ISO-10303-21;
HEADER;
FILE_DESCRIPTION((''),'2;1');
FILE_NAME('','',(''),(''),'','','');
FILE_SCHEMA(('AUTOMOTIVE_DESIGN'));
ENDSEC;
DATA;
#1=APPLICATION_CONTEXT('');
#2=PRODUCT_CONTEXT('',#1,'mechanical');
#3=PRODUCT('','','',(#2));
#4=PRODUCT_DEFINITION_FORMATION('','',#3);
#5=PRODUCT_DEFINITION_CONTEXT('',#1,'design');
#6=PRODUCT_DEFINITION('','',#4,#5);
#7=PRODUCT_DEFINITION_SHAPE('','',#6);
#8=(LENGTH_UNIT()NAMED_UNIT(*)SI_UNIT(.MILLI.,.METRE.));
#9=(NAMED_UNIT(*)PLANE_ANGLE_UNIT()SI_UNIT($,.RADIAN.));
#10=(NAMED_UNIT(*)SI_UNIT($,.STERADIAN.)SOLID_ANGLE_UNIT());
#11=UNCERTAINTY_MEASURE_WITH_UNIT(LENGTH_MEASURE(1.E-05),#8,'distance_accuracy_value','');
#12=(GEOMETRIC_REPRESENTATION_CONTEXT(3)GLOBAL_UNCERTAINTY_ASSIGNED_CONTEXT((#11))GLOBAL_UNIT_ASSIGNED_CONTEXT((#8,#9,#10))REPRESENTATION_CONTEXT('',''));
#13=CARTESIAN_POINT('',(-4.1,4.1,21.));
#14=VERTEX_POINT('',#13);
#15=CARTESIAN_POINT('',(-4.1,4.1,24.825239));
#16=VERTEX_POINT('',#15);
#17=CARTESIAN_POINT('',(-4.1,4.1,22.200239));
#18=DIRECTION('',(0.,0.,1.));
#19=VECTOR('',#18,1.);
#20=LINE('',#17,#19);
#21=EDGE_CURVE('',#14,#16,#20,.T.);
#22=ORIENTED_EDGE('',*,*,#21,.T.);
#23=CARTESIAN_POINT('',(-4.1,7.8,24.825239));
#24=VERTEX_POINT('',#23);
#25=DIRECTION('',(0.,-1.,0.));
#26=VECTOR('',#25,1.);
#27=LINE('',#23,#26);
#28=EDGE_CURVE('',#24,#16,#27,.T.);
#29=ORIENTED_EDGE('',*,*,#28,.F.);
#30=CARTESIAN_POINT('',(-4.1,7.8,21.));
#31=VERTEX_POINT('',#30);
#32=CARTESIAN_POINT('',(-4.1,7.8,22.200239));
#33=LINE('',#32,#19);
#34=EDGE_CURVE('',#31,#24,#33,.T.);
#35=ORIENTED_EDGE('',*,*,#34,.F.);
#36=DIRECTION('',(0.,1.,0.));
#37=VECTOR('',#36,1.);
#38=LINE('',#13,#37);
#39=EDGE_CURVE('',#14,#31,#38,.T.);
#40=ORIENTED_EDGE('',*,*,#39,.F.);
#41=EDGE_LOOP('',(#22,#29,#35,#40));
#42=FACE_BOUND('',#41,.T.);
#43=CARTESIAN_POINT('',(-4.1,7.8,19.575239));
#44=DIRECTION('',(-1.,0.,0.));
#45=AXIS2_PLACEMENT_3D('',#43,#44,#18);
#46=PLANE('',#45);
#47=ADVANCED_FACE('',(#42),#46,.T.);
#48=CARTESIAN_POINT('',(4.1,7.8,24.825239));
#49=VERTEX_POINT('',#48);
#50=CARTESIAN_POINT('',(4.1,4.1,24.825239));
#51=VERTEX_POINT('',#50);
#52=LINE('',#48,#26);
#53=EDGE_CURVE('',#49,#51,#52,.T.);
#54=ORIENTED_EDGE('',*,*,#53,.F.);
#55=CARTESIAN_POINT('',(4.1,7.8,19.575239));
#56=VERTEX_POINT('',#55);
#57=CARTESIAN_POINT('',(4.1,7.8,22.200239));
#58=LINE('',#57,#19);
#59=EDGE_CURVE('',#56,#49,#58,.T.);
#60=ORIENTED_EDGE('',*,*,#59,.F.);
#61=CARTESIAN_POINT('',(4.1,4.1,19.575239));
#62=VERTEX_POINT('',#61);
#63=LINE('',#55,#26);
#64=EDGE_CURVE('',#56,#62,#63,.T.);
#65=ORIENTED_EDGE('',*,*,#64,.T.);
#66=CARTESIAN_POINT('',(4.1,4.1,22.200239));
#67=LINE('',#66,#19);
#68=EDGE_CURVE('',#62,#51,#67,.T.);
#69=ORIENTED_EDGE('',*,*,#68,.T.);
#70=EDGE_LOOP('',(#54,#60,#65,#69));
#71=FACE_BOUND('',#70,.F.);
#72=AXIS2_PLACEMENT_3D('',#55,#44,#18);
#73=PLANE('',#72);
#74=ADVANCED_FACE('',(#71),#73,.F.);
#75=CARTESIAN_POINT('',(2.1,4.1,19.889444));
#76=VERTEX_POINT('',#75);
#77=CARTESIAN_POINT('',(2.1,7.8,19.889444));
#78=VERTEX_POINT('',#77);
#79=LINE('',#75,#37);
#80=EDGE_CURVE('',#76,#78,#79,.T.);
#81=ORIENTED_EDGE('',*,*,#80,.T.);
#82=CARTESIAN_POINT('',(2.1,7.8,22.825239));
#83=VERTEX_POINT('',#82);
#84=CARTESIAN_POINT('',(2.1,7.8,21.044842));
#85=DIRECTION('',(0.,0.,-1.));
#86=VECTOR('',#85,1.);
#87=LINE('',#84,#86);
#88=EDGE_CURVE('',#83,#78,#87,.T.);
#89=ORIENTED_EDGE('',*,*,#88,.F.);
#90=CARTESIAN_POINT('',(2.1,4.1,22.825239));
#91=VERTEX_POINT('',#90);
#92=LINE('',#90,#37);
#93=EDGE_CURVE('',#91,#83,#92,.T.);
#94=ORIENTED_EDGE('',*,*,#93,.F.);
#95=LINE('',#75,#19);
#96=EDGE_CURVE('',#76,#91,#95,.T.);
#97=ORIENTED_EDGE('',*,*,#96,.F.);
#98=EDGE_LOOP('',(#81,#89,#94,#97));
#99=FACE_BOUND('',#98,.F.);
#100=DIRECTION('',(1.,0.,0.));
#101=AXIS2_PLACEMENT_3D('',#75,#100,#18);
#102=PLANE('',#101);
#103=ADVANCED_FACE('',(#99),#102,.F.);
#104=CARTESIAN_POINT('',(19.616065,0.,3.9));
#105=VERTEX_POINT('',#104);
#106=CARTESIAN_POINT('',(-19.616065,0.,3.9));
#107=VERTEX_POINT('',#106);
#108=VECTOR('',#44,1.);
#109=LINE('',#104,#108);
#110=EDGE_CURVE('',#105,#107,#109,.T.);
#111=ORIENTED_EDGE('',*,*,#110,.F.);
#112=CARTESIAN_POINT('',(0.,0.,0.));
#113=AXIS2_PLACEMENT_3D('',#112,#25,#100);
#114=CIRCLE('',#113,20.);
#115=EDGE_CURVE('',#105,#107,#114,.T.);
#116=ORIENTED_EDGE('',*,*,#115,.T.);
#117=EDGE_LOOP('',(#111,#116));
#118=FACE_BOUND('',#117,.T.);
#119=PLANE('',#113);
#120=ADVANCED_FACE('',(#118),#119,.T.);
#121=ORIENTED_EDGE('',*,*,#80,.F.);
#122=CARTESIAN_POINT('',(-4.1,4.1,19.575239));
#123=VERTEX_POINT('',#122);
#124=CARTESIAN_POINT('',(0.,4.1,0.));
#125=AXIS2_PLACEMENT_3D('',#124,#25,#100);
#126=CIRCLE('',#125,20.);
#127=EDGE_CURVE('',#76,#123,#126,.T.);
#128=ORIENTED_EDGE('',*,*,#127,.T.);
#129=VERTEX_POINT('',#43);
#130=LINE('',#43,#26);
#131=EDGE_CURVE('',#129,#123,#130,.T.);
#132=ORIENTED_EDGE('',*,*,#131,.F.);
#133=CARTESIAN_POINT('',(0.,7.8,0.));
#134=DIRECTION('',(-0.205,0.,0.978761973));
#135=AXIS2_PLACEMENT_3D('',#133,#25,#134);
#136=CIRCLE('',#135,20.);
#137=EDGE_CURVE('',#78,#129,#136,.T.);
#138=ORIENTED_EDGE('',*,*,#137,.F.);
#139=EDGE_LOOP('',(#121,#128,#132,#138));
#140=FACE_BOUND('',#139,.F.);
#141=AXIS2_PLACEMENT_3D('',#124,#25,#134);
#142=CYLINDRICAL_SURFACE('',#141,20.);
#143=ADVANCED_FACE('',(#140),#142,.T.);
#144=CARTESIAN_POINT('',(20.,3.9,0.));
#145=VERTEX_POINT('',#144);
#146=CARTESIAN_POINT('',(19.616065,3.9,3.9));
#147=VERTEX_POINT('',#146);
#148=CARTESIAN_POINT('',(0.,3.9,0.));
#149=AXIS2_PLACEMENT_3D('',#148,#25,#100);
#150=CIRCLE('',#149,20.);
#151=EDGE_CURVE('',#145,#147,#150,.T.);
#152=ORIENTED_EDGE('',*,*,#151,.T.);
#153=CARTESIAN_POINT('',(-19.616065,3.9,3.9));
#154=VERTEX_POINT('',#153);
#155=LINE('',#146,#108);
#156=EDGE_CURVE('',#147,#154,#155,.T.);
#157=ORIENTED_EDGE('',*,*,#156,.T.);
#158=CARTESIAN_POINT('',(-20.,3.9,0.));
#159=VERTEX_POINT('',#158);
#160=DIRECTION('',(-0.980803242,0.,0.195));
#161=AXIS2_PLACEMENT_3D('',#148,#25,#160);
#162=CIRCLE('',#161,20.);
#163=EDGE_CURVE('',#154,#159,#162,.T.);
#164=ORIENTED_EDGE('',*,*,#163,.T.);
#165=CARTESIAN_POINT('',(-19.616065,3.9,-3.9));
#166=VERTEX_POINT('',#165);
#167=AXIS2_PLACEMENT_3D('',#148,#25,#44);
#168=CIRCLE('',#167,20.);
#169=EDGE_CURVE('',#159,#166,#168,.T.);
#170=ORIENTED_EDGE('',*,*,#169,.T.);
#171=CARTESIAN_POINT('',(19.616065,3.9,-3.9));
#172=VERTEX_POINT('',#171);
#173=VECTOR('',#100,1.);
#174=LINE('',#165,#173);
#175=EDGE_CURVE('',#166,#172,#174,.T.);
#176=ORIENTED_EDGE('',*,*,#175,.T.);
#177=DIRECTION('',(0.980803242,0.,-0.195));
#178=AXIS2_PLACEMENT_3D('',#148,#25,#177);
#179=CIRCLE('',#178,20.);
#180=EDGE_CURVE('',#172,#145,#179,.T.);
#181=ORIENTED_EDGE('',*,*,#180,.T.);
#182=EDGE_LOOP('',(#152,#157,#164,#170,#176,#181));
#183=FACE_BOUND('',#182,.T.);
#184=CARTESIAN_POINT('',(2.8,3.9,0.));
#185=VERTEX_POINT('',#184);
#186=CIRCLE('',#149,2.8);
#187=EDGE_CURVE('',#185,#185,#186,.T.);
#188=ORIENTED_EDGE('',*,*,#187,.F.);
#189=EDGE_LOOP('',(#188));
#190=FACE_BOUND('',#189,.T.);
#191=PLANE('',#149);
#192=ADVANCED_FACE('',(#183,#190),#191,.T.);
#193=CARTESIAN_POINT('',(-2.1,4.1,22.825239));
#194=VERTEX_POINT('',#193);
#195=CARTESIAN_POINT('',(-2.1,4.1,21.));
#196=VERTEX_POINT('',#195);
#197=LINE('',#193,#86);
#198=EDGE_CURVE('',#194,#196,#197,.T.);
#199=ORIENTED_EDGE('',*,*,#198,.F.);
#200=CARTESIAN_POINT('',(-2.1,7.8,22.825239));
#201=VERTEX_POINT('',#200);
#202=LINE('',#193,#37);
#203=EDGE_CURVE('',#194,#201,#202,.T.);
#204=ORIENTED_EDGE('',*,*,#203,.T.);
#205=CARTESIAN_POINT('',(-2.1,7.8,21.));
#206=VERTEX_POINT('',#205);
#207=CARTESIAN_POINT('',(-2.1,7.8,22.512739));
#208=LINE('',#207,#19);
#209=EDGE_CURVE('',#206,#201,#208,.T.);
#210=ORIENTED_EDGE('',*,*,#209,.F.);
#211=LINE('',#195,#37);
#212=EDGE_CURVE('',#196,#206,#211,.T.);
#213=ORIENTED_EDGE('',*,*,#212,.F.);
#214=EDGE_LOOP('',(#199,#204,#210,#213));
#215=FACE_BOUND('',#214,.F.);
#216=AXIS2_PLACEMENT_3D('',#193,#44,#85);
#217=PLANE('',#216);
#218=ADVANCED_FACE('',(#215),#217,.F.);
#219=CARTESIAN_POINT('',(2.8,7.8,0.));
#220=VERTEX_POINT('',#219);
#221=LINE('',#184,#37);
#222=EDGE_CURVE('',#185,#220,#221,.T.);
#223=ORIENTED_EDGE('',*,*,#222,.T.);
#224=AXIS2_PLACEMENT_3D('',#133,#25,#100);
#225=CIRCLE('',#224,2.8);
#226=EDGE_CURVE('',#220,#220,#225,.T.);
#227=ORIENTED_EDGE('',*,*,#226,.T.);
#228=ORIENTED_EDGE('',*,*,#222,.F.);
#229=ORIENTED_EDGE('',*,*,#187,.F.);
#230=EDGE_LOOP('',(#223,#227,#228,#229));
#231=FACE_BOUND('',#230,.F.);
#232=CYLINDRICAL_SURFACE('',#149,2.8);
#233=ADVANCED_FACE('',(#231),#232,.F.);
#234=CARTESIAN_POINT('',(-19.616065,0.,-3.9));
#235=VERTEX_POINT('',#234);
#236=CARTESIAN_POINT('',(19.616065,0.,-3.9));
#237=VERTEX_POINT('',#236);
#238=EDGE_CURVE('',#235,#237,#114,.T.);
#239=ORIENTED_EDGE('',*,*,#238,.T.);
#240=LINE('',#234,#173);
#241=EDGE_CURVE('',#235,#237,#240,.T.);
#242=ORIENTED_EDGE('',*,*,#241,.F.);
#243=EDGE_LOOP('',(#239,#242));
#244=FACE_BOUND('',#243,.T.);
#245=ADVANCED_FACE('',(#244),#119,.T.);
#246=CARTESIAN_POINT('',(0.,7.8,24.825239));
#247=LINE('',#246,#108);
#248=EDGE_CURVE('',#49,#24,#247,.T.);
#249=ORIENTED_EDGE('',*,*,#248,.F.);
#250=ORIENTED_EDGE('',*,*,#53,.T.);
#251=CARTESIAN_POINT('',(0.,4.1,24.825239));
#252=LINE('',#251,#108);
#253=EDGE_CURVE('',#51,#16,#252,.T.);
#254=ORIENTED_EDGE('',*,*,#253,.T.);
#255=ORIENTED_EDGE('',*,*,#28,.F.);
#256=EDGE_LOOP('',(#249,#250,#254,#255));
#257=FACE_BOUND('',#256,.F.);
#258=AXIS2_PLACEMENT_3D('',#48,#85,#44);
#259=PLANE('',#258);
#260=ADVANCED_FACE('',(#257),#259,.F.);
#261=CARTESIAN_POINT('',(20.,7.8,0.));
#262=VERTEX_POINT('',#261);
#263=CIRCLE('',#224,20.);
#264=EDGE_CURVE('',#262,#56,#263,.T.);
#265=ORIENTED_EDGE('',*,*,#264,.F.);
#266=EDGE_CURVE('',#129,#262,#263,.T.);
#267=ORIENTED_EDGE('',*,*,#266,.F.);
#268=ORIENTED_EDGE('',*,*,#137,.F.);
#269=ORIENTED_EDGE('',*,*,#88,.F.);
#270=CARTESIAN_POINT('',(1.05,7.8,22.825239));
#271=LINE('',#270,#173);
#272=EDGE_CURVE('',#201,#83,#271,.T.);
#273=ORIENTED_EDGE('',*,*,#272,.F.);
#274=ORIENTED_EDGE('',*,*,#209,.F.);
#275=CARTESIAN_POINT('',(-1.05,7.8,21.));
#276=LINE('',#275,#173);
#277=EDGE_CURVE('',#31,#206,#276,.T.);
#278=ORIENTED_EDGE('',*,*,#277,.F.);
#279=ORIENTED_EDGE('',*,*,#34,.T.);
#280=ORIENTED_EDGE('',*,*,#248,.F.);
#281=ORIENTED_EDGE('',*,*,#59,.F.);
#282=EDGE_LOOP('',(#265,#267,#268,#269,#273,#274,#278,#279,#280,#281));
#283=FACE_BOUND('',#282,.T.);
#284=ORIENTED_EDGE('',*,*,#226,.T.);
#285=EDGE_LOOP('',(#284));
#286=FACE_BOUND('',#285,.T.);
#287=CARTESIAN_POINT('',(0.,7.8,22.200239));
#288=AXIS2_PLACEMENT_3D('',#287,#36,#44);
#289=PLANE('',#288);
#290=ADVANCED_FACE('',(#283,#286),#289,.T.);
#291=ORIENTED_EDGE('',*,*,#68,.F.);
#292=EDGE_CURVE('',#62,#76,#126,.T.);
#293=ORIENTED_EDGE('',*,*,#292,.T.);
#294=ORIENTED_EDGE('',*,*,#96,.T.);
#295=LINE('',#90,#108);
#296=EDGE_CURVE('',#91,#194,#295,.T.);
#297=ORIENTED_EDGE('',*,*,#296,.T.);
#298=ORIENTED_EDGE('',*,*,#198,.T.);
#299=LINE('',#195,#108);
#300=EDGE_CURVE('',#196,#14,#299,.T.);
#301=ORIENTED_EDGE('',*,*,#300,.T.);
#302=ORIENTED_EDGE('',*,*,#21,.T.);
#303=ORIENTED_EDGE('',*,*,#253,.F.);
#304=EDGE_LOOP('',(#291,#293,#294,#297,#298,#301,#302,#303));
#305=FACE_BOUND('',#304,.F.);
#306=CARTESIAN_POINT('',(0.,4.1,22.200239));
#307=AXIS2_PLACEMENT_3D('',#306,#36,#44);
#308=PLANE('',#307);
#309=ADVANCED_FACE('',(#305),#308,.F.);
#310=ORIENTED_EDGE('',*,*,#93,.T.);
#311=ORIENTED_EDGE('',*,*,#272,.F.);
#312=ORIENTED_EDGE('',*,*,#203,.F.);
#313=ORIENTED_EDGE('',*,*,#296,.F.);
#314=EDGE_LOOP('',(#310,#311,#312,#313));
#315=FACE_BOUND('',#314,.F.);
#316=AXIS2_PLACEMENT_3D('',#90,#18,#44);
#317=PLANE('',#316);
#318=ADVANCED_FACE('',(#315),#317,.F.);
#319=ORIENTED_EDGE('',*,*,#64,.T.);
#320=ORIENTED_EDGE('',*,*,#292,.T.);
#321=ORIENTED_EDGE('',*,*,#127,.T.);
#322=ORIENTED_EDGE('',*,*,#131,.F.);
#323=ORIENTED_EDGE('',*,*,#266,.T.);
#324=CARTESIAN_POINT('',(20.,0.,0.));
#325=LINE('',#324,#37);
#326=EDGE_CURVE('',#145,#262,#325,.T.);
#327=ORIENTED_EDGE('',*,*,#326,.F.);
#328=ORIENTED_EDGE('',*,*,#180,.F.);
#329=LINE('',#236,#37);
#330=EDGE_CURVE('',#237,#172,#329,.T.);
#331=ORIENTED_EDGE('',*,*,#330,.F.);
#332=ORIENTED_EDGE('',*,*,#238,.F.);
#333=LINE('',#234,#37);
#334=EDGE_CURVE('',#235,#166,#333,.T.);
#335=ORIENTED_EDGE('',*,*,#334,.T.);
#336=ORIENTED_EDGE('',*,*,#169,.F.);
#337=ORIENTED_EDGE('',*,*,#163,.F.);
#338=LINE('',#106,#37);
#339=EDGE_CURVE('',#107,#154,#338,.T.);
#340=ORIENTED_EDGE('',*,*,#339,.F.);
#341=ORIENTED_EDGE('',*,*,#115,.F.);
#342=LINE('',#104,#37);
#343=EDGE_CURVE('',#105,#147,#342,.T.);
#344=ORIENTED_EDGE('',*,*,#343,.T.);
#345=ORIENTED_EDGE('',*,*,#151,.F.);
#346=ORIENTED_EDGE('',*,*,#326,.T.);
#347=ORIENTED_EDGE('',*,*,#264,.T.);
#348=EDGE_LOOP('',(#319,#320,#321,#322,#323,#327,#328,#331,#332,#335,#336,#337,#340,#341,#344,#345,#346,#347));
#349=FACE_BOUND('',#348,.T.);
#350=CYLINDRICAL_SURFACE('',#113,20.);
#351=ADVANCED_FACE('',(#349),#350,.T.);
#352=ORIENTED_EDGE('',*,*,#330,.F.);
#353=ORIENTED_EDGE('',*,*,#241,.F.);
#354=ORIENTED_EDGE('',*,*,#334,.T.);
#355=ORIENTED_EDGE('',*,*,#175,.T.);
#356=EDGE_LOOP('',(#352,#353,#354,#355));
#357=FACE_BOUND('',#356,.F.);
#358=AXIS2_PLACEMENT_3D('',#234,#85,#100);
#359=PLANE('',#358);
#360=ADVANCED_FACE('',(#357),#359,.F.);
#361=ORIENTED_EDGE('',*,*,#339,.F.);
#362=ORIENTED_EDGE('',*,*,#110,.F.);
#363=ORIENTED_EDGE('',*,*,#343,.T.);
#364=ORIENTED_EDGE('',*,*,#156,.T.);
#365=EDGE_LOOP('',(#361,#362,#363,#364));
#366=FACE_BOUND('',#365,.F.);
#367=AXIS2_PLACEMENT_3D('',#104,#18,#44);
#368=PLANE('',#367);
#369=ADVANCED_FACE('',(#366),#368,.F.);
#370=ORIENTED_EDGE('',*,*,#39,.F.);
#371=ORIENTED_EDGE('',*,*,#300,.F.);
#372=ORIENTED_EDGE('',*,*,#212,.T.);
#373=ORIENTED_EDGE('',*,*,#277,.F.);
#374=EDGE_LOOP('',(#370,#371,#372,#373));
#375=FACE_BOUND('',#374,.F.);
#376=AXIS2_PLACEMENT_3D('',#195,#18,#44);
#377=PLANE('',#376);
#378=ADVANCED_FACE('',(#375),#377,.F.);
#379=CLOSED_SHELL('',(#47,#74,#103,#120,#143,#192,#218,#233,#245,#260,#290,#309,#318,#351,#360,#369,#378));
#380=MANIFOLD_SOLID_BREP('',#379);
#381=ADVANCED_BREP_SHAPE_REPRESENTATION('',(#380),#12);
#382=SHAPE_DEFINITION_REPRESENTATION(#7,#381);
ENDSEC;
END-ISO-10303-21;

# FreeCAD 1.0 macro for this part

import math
import FreeCAD as App
import Part
import Sketcher
from FreeCAD import Vector
Q = App.Units.Quantity

doc = App.newDocument("Part")
params = doc.addObject("Spreadsheet::Sheet", "Params")
for row, (alias, value) in enumerate([
    ("sketch1_diameter", "40 mm"),
    ("pad1_length", "7.8 mm"),
    ("sketch2_radius", "20 mm"),
    ("pocket1_length", "3.9 mm"),
    ("sketch3_diameter", "5.6 mm"),
    ("sketch4_width", "8.2 mm"),
    ("sketch4_height", "5.25 mm"),
    ("pad2_length", "3.7 mm"),
    ("sketch5_radius", "20 mm"),
    ("sketch5_width", "2 mm"),
    ("sketch5_width2", "4.2 mm"),
], start=1):
    params.set(f"A{row}", alias)
    params.set(f"B{row}", "=" + value)
    params.setAlias(f"B{row}", alias)

body = doc.addObject("PartDesign::Body", "Body")

# Sketch on XZ plane
sketch1 = body.newObject("Sketcher::SketchObject", "Sketch")
sketch1.AttachmentSupport = (doc.getObject("XZ_Plane"), [""])
sketch1.MapMode = "FlatFace"
sketch1.addGeometry(Part.Circle(Vector(0, 0, 0), Vector(0, 0, 1), 20), False)
sketch1.addConstraint([
    Sketcher.Constraint("Coincident", 0, 3, -1, 1),
    Sketcher.Constraint("Diameter", 0, Q("40 mm")),
])
sketch1.setExpression("Constraints[1]", "Params.sketch1_diameter")
pad1 = body.newObject("PartDesign::Pad", "Pad")
pad1.Profile = sketch1
pad1.setExpression("Length", "Params.pad1_length")
pad1.Reversed = True

# Sketch on XZ plane
sketch2 = body.newObject("Sketcher::SketchObject", "Sketch001")
sketch2.AttachmentSupport = (doc.getObject("XZ_Plane"), [""])
sketch2.MapMode = "FlatFace"
sketch2.addGeometry([
    Part.LineSegment(Vector(19.616065, 3.9, 0), Vector(-19.616065, 3.9, 0)),  # 0
    Part.ArcOfCircle(Part.Circle(Vector(0, 0, 0), Vector(0, 0, 1), 20), math.radians(168.755276), math.radians(180)),  # 1
    Part.ArcOfCircle(Part.Circle(Vector(0, 0, 0), Vector(0, 0, 1), 20), math.radians(180), math.radians(191.244724)),  # 2
    Part.LineSegment(Vector(-19.616065, -3.9, 0), Vector(19.616065, -3.9, 0)),  # 3
    Part.ArcOfCircle(Part.Circle(Vector(0, 0, 0), Vector(0, 0, 1), 20), math.radians(-11.244724), math.radians(0)),  # 4
    Part.ArcOfCircle(Part.Circle(Vector(0, 0, 0), Vector(0, 0, 1), 20), math.radians(0), math.radians(11.244724)),  # 5
], False)
sketch2.addConstraint([
    Sketcher.Constraint("Coincident", 0, 2, 1, 1),
    Sketcher.Constraint("Tangent", 1, 2, 2, 1),
    Sketcher.Constraint("Coincident", 2, 2, 3, 1),
    Sketcher.Constraint("Coincident", 3, 2, 4, 1),
    Sketcher.Constraint("Tangent", 4, 2, 5, 1),
    Sketcher.Constraint("Coincident", 5, 2, 0, 1),
    Sketcher.Constraint("Horizontal", 0),
    Sketcher.Constraint("Horizontal", 3),
    Sketcher.Constraint("Coincident", 1, 3, -1, 1),
    Sketcher.Constraint("Coincident", 4, 3, -1, 1),
    Sketcher.Constraint("Equal", 1, 2),
    Sketcher.Constraint("Equal", 2, 4),
    Sketcher.Constraint("Equal", 4, 5),
    Sketcher.Constraint("PointOnObject", 1, 2, -1),
    Sketcher.Constraint("PointOnObject", 4, 2, -1),
    Sketcher.Constraint("Vertical", 0, 2, 2, 2),
    Sketcher.Constraint("Radius", 1, Q("20 mm")),
    Sketcher.Constraint("DistanceY", -1, 1, 0, 2, Q("3.9 mm")),
])
sketch2.setExpression("Constraints[16]", "Params.sketch2_radius")
pocket1 = body.newObject("PartDesign::Pocket", "Pocket")
pocket1.Profile = sketch2
pocket1.setExpression("Length", "Params.pocket1_length")

# Sketch on XZ plane
sketch3 = body.newObject("Sketcher::SketchObject", "Sketch002")
sketch3.AttachmentSupport = (doc.getObject("XZ_Plane"), [""])
sketch3.MapMode = "FlatFace"
sketch3.AttachmentOffset = App.Placement(Vector(0, 0, -3.9), App.Rotation())
sketch3.addGeometry(Part.Circle(Vector(0, 0, 0), Vector(0, 0, 1), 2.8), False)
sketch3.addConstraint([
    Sketcher.Constraint("Coincident", 0, 3, -1, 1),
    Sketcher.Constraint("Diameter", 0, Q("5.6 mm")),
])
sketch3.setExpression("Constraints[1]", "Params.sketch3_diameter")
pocket2 = body.newObject("PartDesign::Pocket", "Pocket001")
pocket2.Profile = sketch3
pocket2.Type = "ThroughAll"

# Sketch on XZ plane
sketch4 = body.newObject("Sketcher::SketchObject", "Sketch003")
sketch4.AttachmentSupport = (doc.getObject("XZ_Plane"), [""])
sketch4.MapMode = "FlatFace"
sketch4.AttachmentOffset = App.Placement(Vector(0, 0, -7.8), App.Rotation())
sketch4.addGeometry([
    Part.LineSegment(Vector(4.1, 24.825239, 0), Vector(4.1, 19.575239, 0)),
    Part.LineSegment(Vector(4.1, 19.575239, 0), Vector(-4.1, 19.575239, 0)),
    Part.LineSegment(Vector(-4.1, 19.575239, 0), Vector(-4.1, 24.825239, 0)),
    Part.LineSegment(Vector(-4.1, 24.825239, 0), Vector(4.1, 24.825239, 0)),
], False)
sketch4.addConstraint([
    Sketcher.Constraint("Coincident", 0, 2, 1, 1),
    Sketcher.Constraint("Coincident", 1, 2, 2, 1),
    Sketcher.Constraint("Coincident", 2, 2, 3, 1),
    Sketcher.Constraint("Coincident", 3, 2, 0, 1),
    Sketcher.Constraint("Vertical", 0),
    Sketcher.Constraint("Horizontal", 1),
    Sketcher.Constraint("Vertical", 2),
    Sketcher.Constraint("Horizontal", 3),
    Sketcher.Constraint("DistanceX", 1, 2, 1, 1, Q("8.2 mm")),
    Sketcher.Constraint("DistanceY", 0, 2, 0, 1, Q("5.25 mm")),
    Sketcher.Constraint("DistanceX", -1, 1, 0, 2, Q("4.1 mm")),
    Sketcher.Constraint("DistanceY", -1, 1, 0, 2, Q("19.575239 mm")),
])
sketch4.setExpression("Constraints[8]", "Params.sketch4_width")
sketch4.setExpression("Constraints[9]", "Params.sketch4_height")
pad2 = body.newObject("PartDesign::Pad", "Pad001")
pad2.Profile = sketch4
pad2.setExpression("Length", "Params.pad2_length")

# Sketch on XZ plane
sketch5 = body.newObject("Sketcher::SketchObject", "Sketch004")
sketch5.AttachmentSupport = (doc.getObject("XZ_Plane"), [""])
sketch5.MapMode = "FlatFace"
sketch5.AttachmentOffset = App.Placement(Vector(0, 0, -4.1), App.Rotation())
sketch5.addGeometry([
    Part.LineSegment(Vector(-2.1, 22.825239, 0), Vector(-2.1, 21, 0)),  # 0
    Part.LineSegment(Vector(-2.1, 21, 0), Vector(-4.1, 21, 0)),  # 1
    Part.LineSegment(Vector(-4.1, 21, 0), Vector(-4.1, 19.575239, 0)),  # 2
    Part.ArcOfCircle(Part.Circle(Vector(0, 0, 0), Vector(0, 0, 1), 20), math.radians(83.972833), math.radians(101.829499)),  # 3
    Part.LineSegment(Vector(2.1, 19.889444, 0), Vector(2.1, 22.825239, 0)),  # 4
    Part.LineSegment(Vector(2.1, 22.825239, 0), Vector(-2.1, 22.825239, 0)),  # 5
], False)
sketch5.addConstraint([
    Sketcher.Constraint("Coincident", 0, 2, 1, 1),
    Sketcher.Constraint("Coincident", 1, 2, 2, 1),
    Sketcher.Constraint("Coincident", 2, 2, 3, 2),
    Sketcher.Constraint("Coincident", 3, 1, 4, 1),
    Sketcher.Constraint("Coincident", 4, 2, 5, 1),
    Sketcher.Constraint("Coincident", 5, 2, 0, 1),
    Sketcher.Constraint("Vertical", 0),
    Sketcher.Constraint("Horizontal", 1),
    Sketcher.Constraint("Vertical", 2),
    Sketcher.Constraint("Vertical", 4),
    Sketcher.Constraint("Horizontal", 5),
    Sketcher.Constraint("Coincident", 3, 3, -1, 1),
    Sketcher.Constraint("Radius", 3, Q("20 mm")),
    Sketcher.Constraint("DistanceX", 1, 2, 1, 1, Q("2 mm")),
    Sketcher.Constraint("DistanceX", 5, 2, 5, 1, Q("4.2 mm")),
    Sketcher.Constraint("DistanceY", -1, 1, 0, 2, Q("21 mm")),
    Sketcher.Constraint("DistanceX", 0, 2, -1, 1, Q("2.1 mm")),
    Sketcher.Constraint("DistanceY", 2, 2, 4, 2, Q("3.25 mm")),
])
sketch5.setExpression("Constraints[12]", "Params.sketch5_radius")
sketch5.setExpression("Constraints[13]", "Params.sketch5_width")
sketch5.setExpression("Constraints[14]", "Params.sketch5_width2")
pocket3 = body.newObject("PartDesign::Pocket", "Pocket002")
pocket3.Profile = sketch5
pocket3.Type = "ThroughAll"

doc.recompute()
